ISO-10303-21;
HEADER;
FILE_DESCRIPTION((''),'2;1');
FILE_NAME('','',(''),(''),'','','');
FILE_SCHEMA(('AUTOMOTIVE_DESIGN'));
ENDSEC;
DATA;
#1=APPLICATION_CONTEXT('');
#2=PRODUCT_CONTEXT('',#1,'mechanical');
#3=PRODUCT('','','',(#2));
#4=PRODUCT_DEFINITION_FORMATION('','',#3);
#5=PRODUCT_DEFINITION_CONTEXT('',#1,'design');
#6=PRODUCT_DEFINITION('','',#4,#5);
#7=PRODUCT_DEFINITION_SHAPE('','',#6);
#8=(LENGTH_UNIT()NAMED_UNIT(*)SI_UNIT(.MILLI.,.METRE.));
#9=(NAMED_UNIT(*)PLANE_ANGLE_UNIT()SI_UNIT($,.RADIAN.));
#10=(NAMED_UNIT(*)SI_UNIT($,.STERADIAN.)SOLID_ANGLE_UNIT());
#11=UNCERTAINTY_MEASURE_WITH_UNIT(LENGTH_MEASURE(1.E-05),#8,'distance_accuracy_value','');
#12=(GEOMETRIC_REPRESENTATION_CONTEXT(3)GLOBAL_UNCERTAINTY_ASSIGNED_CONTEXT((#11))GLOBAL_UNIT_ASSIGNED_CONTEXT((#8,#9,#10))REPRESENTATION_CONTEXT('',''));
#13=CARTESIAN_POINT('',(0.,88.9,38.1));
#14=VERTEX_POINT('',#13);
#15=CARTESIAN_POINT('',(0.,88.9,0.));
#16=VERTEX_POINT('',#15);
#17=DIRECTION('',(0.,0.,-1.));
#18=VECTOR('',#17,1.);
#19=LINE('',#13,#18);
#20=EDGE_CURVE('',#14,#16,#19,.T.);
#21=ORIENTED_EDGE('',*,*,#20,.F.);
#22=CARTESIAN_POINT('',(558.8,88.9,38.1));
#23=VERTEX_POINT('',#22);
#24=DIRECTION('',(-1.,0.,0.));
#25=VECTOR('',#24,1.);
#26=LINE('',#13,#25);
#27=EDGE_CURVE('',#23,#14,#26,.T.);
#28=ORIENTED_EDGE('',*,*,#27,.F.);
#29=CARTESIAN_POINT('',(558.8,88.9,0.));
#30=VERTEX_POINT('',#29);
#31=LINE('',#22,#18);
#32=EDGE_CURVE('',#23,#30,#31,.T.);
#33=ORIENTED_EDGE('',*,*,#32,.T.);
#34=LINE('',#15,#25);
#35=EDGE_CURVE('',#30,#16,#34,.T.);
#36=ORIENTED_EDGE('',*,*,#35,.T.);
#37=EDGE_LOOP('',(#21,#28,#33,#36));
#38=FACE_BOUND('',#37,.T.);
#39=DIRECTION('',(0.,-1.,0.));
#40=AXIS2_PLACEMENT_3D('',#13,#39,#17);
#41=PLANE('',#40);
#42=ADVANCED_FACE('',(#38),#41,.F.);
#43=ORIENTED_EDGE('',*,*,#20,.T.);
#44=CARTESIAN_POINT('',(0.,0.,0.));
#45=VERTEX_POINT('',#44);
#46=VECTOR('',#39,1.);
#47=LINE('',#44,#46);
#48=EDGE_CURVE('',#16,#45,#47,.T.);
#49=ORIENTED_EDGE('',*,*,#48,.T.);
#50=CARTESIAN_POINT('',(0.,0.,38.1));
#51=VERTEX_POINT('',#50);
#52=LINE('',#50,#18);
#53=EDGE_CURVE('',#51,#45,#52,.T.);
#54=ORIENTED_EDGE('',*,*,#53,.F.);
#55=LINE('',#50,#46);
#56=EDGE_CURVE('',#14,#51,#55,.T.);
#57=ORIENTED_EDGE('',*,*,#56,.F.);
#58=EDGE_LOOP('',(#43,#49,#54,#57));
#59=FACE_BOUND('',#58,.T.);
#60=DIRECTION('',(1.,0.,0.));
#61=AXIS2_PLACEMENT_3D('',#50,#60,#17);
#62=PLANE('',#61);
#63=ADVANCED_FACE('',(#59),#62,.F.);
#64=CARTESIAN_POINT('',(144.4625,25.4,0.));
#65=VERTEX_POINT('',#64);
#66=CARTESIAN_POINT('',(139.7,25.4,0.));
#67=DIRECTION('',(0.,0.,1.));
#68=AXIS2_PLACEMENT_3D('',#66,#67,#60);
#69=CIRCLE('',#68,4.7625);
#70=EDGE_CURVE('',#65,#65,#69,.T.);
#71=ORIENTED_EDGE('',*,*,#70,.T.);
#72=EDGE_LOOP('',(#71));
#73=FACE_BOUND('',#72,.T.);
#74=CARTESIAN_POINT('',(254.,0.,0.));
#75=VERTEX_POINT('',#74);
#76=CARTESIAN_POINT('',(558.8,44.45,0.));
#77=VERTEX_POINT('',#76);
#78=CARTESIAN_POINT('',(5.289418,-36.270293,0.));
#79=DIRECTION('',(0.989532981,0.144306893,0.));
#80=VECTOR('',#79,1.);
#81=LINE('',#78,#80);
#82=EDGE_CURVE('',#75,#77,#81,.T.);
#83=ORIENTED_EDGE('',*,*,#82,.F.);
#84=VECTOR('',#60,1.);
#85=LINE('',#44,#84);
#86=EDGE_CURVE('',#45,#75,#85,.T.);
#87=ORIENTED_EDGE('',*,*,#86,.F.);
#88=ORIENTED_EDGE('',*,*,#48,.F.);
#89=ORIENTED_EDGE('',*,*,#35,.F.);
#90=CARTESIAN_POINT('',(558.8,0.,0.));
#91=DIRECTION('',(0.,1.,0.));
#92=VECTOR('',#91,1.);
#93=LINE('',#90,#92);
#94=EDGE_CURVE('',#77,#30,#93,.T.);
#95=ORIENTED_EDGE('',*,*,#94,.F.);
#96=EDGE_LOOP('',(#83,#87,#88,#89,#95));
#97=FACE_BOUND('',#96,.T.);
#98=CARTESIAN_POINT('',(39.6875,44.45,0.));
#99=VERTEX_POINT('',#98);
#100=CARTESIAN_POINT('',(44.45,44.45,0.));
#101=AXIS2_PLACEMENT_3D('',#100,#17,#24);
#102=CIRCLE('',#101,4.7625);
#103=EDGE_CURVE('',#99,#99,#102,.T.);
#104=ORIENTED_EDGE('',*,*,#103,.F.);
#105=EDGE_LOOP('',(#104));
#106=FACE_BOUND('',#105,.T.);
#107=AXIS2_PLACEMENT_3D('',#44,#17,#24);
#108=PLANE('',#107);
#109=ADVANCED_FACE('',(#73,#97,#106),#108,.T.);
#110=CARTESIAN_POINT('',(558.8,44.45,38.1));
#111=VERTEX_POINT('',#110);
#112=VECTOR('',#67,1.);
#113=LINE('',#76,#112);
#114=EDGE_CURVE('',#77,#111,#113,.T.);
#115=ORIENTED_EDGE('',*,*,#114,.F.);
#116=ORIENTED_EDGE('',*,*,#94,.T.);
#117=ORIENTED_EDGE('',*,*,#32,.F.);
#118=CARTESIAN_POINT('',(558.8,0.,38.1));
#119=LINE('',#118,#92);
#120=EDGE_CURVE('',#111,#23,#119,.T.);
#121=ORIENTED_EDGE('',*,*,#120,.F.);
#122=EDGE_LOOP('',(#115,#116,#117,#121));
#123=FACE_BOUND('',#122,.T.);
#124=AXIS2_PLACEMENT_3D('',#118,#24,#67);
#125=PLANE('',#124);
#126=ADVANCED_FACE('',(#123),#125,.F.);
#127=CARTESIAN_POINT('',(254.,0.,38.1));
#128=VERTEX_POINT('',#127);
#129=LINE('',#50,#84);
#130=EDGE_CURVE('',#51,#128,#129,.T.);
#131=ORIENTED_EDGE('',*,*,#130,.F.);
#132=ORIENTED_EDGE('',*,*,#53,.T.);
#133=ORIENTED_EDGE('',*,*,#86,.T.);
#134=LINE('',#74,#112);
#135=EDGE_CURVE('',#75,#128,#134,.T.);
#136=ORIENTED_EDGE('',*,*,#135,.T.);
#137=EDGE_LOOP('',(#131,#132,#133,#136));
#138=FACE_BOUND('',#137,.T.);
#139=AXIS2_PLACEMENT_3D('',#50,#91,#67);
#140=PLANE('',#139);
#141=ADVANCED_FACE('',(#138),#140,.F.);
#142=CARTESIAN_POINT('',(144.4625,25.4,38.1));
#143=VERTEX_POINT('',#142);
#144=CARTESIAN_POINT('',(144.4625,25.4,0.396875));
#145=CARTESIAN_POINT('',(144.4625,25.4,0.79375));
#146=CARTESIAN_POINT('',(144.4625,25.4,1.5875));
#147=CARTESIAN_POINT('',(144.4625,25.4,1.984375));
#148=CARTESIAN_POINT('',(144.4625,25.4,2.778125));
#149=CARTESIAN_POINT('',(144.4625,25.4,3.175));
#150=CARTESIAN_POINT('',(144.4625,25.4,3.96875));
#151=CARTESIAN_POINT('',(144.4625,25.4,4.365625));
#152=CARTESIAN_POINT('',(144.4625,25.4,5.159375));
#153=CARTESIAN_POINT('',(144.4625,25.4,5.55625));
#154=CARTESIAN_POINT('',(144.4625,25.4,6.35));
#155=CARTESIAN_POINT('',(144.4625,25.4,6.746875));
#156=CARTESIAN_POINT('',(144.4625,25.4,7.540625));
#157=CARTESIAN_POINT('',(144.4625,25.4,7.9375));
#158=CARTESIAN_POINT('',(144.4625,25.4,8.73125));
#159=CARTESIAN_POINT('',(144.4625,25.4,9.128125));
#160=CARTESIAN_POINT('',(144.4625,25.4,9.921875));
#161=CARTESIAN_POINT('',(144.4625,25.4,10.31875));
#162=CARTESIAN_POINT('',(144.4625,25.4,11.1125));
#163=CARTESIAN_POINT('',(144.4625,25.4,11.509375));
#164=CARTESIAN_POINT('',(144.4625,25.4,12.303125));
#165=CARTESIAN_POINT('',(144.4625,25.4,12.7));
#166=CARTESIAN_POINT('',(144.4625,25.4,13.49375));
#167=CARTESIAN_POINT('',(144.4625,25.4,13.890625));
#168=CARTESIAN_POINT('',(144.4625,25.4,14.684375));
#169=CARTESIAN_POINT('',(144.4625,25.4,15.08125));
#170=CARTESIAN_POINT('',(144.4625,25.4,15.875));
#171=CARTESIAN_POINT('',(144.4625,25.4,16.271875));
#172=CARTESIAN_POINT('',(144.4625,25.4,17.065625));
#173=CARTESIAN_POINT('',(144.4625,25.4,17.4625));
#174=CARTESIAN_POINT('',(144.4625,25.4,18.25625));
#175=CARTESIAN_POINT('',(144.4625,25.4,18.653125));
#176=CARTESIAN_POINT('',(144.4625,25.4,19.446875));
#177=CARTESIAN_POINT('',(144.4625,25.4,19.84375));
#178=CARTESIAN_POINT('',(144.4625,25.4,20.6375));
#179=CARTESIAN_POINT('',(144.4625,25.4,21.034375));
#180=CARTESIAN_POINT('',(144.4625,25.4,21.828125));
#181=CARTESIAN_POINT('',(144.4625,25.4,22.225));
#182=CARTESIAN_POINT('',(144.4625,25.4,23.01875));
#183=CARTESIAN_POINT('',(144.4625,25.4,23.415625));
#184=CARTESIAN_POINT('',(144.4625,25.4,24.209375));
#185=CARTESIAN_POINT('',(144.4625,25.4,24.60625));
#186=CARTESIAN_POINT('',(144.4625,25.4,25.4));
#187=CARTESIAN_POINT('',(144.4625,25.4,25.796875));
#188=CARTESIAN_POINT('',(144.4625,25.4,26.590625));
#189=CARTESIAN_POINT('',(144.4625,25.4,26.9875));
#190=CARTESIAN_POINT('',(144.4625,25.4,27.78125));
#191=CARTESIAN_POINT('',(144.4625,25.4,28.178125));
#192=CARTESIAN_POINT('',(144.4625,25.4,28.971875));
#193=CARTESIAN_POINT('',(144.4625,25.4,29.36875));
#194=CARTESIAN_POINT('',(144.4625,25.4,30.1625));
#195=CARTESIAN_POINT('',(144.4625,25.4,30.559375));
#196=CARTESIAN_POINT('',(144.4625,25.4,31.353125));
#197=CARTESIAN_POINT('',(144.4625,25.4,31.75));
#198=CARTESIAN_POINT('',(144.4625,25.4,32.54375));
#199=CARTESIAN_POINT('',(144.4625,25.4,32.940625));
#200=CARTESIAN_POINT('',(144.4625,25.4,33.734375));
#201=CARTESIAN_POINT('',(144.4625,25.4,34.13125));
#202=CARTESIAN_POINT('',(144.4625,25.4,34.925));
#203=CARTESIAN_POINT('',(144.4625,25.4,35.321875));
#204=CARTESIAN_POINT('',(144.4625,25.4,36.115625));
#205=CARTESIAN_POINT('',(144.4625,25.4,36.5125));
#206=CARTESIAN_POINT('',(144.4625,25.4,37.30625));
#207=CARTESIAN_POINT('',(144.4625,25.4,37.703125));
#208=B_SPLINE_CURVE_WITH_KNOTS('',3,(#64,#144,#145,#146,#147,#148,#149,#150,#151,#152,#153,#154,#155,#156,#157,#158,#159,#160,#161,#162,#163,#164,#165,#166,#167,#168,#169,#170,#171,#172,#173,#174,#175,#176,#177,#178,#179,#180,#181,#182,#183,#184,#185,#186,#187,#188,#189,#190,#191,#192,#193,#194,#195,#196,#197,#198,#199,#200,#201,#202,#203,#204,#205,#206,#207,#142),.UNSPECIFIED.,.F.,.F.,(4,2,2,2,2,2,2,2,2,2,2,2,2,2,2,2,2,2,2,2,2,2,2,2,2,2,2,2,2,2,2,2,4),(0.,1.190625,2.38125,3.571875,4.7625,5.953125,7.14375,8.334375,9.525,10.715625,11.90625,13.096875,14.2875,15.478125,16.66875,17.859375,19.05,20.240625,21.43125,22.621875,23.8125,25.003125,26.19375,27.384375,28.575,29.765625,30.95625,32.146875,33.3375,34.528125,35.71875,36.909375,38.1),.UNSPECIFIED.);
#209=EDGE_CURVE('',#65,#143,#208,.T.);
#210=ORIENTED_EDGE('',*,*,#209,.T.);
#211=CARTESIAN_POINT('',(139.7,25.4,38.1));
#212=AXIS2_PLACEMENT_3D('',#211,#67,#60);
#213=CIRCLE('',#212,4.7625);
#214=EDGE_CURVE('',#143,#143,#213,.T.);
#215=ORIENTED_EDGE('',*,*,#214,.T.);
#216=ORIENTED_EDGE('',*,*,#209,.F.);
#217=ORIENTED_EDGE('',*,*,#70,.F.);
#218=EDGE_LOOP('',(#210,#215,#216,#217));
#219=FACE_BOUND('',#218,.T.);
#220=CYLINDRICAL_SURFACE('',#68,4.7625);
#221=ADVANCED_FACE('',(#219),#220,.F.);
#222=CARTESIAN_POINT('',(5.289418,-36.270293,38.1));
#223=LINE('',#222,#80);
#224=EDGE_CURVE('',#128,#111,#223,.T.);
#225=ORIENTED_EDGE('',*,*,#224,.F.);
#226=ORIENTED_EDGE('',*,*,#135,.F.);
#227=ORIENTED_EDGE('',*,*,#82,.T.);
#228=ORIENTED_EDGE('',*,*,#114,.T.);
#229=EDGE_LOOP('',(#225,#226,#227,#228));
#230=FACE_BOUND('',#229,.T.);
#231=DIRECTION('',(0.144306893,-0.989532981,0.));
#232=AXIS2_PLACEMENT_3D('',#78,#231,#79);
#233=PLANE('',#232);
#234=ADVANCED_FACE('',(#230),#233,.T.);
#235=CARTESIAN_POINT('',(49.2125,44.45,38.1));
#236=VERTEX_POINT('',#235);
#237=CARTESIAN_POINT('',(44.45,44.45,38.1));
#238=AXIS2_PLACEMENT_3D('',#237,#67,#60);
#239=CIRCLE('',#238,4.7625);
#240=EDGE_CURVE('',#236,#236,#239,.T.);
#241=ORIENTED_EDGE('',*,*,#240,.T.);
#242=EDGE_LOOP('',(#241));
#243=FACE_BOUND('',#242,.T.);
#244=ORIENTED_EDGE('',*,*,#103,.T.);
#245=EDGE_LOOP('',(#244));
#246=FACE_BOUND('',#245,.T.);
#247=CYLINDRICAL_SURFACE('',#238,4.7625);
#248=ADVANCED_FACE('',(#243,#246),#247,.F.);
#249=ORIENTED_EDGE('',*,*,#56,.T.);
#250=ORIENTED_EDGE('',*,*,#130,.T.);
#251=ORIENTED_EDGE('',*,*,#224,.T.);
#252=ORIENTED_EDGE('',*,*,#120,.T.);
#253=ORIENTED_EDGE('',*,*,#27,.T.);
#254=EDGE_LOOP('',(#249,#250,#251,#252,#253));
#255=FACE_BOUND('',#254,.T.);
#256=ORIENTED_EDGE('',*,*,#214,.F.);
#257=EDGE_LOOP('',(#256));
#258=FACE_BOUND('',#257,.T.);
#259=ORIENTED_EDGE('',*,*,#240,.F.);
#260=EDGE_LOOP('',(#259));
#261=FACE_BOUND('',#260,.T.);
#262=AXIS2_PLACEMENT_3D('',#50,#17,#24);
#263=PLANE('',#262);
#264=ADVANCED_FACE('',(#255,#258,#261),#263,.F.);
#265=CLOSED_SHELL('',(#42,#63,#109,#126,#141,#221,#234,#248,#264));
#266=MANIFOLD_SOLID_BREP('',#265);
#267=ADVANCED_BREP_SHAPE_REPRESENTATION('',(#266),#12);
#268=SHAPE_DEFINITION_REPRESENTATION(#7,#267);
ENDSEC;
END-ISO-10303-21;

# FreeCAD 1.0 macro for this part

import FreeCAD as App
import Part
import Sketcher

V = App.Vector
Q = App.Units.Quantity

doc = App.newDocument("Part")
body = doc.addObject("PartDesign::Body", "Body")

sketch1 = doc.addObject("Sketcher::SketchObject", "Sketch")
body.addObject(sketch1)
sketch1.AttachmentSupport = (doc.XY_Plane, [""])
sketch1.MapMode = "FlatFace"
sketch1.addGeometry([
    Part.LineSegment(V(0, 89, 0), V(0, 0, 0)),
    Part.LineSegment(V(0, 0, 0), V(559, 0, 0)),
    Part.LineSegment(V(559, 0, 0), V(559, 89, 0)),
    Part.LineSegment(V(559, 89, 0), V(0, 89, 0)),
], False)
sketch1.addConstraint([
    Sketcher.Constraint("Coincident", 0, 2, 1, 1),
    Sketcher.Constraint("Coincident", 1, 2, 2, 1),
    Sketcher.Constraint("Coincident", 2, 2, 3, 1),
    Sketcher.Constraint("Coincident", 3, 2, 0, 1),
    Sketcher.Constraint("Vertical", 0),
    Sketcher.Constraint("Horizontal", 1),
    Sketcher.Constraint("Vertical", 2),
    Sketcher.Constraint("Horizontal", 3),
    Sketcher.Constraint("Coincident", 0, 2, -1, 1),
    Sketcher.Constraint("DistanceX", 1, 1, 1, 2, Q("22 in")),
    Sketcher.Constraint("DistanceY", 0, 2, 0, 1, Q("3.5 in")),
])
pad1 = doc.addObject("PartDesign::Pad", "Pad")
body.addObject(pad1)
pad1.Profile = sketch1
pad1.Length = Q("1.5 in")

sketch2 = doc.addObject("Sketcher::SketchObject", "Sketch001")
body.addObject(sketch2)
sketch2.AttachmentSupport = (doc.XY_Plane, [""])
sketch2.MapMode = "FlatFace"
sketch2.AttachmentOffset = App.Placement(V(0, 0, 1.5 * 25.4), App.Rotation())
sketch2.addGeometry([
    Part.LineSegment(V(559, 44, 0), V(254, 0, 0)),
    Part.LineSegment(V(254, 0, 0), V(559, 0, 0)),
    Part.LineSegment(V(559, 0, 0), V(559, 44, 0)),
], False)
sketch2.addConstraint([
    Sketcher.Constraint("Coincident", 0, 2, 1, 1),
    Sketcher.Constraint("Coincident", 1, 2, 2, 1),
    Sketcher.Constraint("Coincident", 2, 2, 0, 1),
    Sketcher.Constraint("Horizontal", 1),
    Sketcher.Constraint("Vertical", 2),
    Sketcher.Constraint("PointOnObject", 0, 2, -1),
    Sketcher.Constraint("DistanceX", 1, 1, 1, 2, Q("12 in")),
    Sketcher.Constraint("DistanceX", -1, 1, 0, 2, Q("10 in")),
    Sketcher.Constraint("DistanceY", 2, 1, 2, 2, Q("1.75 in")),
])
pocket1 = doc.addObject("PartDesign::Pocket", "Pocket")
body.addObject(pocket1)
pocket1.Profile = sketch2
pocket1.Type = "ThroughAll"

sketch3 = doc.addObject("Sketcher::SketchObject", "Sketch002")
body.addObject(sketch3)
sketch3.AttachmentSupport = (doc.XY_Plane, [""])
sketch3.MapMode = "FlatFace"
sketch3.AttachmentOffset = App.Placement(V(0, 0, 1.5 * 25.4), App.Rotation())
sketch3.addGeometry(Part.Circle(V(44.5, 44.5, 0), V(0, 0, 1), 4.8), False)
sketch3.addConstraint([
    Sketcher.Constraint("Diameter", 0, Q("0.375 in")),
    Sketcher.Constraint("DistanceX", -1, 1, 0, 3, Q("1.75 in")),
    Sketcher.Constraint("DistanceY", -1, 1, 0, 3, Q("1.75 in")),
])
doc.recompute()
hole = doc.addObject("PartDesign::Hole", "Hole")
body.addObject(hole)
hole.Profile = sketch3
hole.ThreadType = "None"
hole.Diameter = Q("0.375 in")
hole.DepthType = "Dimension"
hole.Depth = Q("3 in")
hole.DrillPoint = "Angled"
hole.DrillPointAngle = 118

sketch4 = doc.addObject("Sketcher::SketchObject", "Sketch003")
body.addObject(sketch4)
sketch4.AttachmentSupport = (doc.XY_Plane, [""])
sketch4.MapMode = "FlatFace"
sketch4.AttachmentOffset = App.Placement(V(0, 0, 1.5 * 25.4), App.Rotation())
sketch4.addGeometry(Part.Circle(V(139.7, 25.4, 0), V(0, 0, 1), 4.8), False)
sketch4.addConstraint([
    Sketcher.Constraint("Diameter", 0, Q("0.375 in")),
    Sketcher.Constraint("DistanceY", -1, 1, 0, 3, Q("1 in")),
    Sketcher.Constraint("DistanceX", -1, 1, 0, 3, Q("5.5 in")),
])
pocket2 = doc.addObject("PartDesign::Pocket", "Pocket001")
body.addObject(pocket2)
pocket2.Profile = sketch4
pocket2.Type = "ThroughAll"

doc.recompute()
